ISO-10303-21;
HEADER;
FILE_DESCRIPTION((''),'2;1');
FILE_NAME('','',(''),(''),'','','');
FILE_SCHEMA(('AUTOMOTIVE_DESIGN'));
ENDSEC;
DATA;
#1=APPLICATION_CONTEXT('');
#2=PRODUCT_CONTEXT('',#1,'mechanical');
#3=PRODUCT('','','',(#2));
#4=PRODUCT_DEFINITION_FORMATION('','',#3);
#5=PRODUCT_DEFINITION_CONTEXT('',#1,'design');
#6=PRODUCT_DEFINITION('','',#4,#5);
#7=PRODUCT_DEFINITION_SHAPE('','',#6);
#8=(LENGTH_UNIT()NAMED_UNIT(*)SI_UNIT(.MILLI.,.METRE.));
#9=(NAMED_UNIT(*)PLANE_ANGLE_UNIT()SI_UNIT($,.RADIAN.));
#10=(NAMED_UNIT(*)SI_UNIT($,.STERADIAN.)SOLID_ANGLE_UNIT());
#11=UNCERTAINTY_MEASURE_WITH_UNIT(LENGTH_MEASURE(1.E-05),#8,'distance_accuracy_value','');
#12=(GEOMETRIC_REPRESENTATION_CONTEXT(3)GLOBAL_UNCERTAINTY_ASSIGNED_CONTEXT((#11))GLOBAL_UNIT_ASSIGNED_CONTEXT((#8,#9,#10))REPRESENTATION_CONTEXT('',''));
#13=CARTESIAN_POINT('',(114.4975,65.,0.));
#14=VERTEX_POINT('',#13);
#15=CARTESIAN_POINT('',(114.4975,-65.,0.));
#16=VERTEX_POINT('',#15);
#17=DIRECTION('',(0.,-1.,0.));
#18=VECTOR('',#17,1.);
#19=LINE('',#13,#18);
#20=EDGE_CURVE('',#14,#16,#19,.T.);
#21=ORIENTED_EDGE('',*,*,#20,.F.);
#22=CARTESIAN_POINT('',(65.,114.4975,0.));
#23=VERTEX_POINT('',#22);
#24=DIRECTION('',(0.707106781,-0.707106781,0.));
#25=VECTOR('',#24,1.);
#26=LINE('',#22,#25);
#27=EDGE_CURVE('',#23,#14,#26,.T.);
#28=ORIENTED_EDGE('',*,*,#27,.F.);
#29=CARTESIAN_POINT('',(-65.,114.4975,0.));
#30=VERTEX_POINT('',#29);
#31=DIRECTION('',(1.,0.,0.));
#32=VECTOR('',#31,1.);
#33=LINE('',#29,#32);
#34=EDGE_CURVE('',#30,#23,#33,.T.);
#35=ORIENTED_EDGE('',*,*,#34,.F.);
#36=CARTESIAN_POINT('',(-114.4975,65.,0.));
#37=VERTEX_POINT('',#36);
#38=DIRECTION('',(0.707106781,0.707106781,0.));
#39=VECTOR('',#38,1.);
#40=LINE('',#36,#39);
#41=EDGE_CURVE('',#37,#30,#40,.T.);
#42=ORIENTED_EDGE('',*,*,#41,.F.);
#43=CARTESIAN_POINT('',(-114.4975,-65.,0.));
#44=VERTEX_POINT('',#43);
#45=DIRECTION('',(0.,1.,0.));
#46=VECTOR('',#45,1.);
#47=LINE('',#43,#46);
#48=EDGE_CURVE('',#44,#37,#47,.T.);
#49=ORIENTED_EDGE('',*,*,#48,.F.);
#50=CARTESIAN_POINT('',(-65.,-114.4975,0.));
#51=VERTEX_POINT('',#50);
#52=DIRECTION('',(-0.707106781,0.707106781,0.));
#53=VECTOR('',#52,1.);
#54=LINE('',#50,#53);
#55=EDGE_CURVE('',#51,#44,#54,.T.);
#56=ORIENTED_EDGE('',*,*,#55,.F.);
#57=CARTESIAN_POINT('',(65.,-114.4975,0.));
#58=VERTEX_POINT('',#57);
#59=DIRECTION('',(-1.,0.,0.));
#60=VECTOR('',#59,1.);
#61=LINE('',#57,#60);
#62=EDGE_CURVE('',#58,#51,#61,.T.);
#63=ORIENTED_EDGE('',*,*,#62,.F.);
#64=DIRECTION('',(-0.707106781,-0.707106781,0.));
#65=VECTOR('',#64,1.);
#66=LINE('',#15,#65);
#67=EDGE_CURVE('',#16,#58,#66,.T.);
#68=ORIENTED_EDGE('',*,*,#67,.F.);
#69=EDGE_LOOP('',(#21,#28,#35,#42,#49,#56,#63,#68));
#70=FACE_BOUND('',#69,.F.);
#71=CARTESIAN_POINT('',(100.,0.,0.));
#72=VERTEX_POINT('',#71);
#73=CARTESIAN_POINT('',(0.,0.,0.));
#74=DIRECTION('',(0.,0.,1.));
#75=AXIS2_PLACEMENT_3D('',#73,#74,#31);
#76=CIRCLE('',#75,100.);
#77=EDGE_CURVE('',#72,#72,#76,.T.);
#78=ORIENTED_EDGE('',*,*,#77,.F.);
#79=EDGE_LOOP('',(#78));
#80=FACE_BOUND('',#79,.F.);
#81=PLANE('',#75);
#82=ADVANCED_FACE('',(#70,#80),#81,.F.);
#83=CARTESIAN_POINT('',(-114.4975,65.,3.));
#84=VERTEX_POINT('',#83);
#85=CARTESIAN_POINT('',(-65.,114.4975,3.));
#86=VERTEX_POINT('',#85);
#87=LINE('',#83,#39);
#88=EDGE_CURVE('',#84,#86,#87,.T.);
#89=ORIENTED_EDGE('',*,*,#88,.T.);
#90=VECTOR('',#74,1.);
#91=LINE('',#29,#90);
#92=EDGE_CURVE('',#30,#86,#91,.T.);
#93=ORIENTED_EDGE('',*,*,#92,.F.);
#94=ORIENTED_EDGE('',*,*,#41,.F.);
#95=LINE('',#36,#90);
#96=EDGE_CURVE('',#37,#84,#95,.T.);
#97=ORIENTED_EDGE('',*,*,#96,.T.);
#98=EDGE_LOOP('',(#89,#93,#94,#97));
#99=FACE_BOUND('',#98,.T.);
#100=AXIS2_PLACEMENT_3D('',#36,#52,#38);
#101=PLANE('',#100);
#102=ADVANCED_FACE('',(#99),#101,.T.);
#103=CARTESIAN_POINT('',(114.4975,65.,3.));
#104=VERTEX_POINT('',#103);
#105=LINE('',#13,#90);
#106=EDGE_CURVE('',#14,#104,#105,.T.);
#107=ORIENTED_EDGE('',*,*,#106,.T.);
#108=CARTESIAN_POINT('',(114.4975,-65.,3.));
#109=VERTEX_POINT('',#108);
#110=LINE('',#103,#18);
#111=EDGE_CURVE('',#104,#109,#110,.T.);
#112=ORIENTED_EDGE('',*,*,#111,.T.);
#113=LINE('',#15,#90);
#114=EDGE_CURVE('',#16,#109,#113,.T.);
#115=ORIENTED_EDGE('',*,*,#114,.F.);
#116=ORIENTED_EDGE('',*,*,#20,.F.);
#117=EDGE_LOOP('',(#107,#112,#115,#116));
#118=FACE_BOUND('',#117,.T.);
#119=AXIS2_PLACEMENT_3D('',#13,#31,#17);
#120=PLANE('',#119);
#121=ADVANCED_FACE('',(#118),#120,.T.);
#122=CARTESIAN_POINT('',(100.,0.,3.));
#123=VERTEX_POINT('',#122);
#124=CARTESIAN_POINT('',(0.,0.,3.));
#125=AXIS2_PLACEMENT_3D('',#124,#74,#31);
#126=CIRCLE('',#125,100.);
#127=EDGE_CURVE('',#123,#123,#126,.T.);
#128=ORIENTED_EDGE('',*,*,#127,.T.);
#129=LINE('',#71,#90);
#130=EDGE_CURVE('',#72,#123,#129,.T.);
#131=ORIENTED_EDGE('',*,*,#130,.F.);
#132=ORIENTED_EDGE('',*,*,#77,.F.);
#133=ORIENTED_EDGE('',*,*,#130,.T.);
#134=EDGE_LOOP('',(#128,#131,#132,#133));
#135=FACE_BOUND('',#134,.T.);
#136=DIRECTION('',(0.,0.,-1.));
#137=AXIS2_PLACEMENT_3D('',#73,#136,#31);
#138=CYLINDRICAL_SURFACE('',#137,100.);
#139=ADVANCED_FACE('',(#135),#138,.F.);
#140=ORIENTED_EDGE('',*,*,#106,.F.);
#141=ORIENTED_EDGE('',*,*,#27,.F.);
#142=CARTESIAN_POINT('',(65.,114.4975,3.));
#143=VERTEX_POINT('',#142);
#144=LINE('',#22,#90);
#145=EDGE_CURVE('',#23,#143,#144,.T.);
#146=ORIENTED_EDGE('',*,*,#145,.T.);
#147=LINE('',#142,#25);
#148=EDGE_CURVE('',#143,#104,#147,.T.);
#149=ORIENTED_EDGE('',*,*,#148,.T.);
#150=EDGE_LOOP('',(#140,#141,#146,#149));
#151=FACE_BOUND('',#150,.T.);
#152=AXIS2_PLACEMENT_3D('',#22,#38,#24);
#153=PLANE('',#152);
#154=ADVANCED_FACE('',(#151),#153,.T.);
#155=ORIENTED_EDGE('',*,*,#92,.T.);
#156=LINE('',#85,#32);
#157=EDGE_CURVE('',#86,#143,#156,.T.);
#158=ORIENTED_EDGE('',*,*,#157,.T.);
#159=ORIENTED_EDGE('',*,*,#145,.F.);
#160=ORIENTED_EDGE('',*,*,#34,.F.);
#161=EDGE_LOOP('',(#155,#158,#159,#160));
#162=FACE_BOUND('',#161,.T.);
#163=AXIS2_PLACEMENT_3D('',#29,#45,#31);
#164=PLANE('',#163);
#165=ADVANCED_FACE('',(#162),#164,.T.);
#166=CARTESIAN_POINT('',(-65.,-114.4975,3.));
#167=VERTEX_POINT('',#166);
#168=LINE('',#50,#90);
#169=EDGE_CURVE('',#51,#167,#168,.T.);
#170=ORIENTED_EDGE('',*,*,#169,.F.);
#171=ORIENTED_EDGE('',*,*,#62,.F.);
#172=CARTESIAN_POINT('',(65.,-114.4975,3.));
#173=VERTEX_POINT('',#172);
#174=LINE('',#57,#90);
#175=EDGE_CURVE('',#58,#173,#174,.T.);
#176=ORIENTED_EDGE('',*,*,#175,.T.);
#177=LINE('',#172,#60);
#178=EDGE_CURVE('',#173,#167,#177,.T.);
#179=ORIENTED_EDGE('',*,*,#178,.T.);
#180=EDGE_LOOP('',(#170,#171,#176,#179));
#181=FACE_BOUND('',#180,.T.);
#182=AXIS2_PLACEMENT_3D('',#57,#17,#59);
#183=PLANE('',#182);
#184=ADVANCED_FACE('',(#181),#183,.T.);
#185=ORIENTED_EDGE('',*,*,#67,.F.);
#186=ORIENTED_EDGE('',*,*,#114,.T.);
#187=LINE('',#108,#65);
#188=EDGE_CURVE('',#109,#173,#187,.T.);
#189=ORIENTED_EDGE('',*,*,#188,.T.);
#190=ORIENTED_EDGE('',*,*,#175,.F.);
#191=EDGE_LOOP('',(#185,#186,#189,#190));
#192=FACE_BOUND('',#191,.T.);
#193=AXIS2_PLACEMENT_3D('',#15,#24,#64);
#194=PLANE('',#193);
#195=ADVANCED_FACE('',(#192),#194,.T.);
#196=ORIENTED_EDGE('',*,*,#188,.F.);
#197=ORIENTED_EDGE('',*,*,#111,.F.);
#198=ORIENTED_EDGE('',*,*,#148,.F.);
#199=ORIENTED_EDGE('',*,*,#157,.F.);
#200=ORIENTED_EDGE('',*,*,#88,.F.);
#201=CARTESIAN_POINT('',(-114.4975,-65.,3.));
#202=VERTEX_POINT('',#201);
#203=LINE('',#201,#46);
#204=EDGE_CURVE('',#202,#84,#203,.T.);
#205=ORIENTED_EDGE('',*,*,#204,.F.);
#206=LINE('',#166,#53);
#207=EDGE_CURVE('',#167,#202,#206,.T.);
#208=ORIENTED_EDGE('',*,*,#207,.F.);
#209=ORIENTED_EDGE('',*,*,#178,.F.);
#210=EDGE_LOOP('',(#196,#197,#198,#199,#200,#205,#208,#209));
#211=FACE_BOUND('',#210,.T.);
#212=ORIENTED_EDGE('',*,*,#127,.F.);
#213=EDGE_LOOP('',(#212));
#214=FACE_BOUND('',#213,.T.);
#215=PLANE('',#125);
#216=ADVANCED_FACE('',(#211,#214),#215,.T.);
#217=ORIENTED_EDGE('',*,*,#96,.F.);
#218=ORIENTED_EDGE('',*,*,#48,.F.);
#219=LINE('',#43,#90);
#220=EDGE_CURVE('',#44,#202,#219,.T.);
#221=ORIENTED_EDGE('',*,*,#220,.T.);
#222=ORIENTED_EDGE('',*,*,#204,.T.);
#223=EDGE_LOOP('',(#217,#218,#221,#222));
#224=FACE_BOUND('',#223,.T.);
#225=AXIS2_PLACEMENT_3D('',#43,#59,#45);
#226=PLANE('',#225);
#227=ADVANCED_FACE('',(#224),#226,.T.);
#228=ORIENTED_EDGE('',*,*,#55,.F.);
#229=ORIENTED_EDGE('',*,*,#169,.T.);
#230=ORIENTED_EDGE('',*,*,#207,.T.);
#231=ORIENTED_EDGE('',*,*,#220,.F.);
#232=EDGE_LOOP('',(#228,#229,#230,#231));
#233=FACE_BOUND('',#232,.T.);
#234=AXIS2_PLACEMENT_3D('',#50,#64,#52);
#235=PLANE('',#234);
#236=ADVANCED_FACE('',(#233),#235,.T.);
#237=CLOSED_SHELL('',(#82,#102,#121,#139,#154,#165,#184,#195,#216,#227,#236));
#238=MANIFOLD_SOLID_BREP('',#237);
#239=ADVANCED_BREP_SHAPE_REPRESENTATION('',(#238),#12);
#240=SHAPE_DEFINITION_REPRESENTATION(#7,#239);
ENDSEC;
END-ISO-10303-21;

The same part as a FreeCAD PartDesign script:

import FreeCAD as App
import Part
import Sketcher
from FreeCAD import Vector
Q = App.Units.Quantity


def add_polygon(sketch, points):
    """Adds a closed chain of lines whose ends are joined by coincident constraints."""
    first, n = sketch.GeometryCount, len(points)
    for a, b in zip(points, points[1:] + points[:1]):
        sketch.addGeometry(Part.LineSegment(App.Vector(*a, 0), App.Vector(*b, 0)), False)
    for i in range(n):
        sketch.addConstraint(Sketcher.Constraint("Coincident", first + i, 2, first + (i + 1) % n, 1))

doc = App.newDocument("Part")
body = doc.addObject("PartDesign::Body", "Body")

# Sketch on XY plane
sketch1 = body.newObject("Sketcher::SketchObject", "Sketch")
sketch1.AttachmentSupport = (doc.getObject("XY_Plane"), [""])
sketch1.MapMode = "FlatFace"
add_polygon(sketch1, [(-114, 65), (-114, -65), (-65, -114), (65, -114), (114, -65), (114, 65), (65, 114), (-65, 114)])  # lines 0-7
sketch1.addGeometry(Part.Circle(Vector(0, 0, 0), Vector(0, 0, 1), 100), False)  # 8
sketch1.addConstraint([
    Sketcher.Constraint("Vertical", 0),
    Sketcher.Constraint("Horizontal", 2),
    Sketcher.Constraint("Vertical", 4),
    Sketcher.Constraint("Horizontal", 6),
    Sketcher.Constraint("Coincident", 8, 3, -1, 1),
    Sketcher.Constraint("Symmetric", 0, 2, 4, 2, -1, 1),
    Sketcher.Constraint("Symmetric", 1, 2, 5, 2, -1, 1),
    Sketcher.Constraint("Perpendicular", 1, 3),
    Sketcher.Constraint("Perpendicular", 5, 7),
    Sketcher.Constraint("Horizontal", 0, 2, 3, 2),
    Sketcher.Constraint("Horizontal", 4, 2, 7, 2),
    Sketcher.Constraint("Vertical", 2, 2, 5, 2),
    Sketcher.Constraint("Equal", 6, 0),
    Sketcher.Constraint("Diameter", 8, Q("200 mm")),
    Sketcher.Constraint("DistanceX", 2, 1, 2, 2, Q("130 mm")),
    Sketcher.Constraint("Distance", 1, Q("70 mm")),
])
pad1 = body.newObject("PartDesign::Pad", "Pad")
pad1.Profile = sketch1
pad1.Length = 3

doc.recompute()
